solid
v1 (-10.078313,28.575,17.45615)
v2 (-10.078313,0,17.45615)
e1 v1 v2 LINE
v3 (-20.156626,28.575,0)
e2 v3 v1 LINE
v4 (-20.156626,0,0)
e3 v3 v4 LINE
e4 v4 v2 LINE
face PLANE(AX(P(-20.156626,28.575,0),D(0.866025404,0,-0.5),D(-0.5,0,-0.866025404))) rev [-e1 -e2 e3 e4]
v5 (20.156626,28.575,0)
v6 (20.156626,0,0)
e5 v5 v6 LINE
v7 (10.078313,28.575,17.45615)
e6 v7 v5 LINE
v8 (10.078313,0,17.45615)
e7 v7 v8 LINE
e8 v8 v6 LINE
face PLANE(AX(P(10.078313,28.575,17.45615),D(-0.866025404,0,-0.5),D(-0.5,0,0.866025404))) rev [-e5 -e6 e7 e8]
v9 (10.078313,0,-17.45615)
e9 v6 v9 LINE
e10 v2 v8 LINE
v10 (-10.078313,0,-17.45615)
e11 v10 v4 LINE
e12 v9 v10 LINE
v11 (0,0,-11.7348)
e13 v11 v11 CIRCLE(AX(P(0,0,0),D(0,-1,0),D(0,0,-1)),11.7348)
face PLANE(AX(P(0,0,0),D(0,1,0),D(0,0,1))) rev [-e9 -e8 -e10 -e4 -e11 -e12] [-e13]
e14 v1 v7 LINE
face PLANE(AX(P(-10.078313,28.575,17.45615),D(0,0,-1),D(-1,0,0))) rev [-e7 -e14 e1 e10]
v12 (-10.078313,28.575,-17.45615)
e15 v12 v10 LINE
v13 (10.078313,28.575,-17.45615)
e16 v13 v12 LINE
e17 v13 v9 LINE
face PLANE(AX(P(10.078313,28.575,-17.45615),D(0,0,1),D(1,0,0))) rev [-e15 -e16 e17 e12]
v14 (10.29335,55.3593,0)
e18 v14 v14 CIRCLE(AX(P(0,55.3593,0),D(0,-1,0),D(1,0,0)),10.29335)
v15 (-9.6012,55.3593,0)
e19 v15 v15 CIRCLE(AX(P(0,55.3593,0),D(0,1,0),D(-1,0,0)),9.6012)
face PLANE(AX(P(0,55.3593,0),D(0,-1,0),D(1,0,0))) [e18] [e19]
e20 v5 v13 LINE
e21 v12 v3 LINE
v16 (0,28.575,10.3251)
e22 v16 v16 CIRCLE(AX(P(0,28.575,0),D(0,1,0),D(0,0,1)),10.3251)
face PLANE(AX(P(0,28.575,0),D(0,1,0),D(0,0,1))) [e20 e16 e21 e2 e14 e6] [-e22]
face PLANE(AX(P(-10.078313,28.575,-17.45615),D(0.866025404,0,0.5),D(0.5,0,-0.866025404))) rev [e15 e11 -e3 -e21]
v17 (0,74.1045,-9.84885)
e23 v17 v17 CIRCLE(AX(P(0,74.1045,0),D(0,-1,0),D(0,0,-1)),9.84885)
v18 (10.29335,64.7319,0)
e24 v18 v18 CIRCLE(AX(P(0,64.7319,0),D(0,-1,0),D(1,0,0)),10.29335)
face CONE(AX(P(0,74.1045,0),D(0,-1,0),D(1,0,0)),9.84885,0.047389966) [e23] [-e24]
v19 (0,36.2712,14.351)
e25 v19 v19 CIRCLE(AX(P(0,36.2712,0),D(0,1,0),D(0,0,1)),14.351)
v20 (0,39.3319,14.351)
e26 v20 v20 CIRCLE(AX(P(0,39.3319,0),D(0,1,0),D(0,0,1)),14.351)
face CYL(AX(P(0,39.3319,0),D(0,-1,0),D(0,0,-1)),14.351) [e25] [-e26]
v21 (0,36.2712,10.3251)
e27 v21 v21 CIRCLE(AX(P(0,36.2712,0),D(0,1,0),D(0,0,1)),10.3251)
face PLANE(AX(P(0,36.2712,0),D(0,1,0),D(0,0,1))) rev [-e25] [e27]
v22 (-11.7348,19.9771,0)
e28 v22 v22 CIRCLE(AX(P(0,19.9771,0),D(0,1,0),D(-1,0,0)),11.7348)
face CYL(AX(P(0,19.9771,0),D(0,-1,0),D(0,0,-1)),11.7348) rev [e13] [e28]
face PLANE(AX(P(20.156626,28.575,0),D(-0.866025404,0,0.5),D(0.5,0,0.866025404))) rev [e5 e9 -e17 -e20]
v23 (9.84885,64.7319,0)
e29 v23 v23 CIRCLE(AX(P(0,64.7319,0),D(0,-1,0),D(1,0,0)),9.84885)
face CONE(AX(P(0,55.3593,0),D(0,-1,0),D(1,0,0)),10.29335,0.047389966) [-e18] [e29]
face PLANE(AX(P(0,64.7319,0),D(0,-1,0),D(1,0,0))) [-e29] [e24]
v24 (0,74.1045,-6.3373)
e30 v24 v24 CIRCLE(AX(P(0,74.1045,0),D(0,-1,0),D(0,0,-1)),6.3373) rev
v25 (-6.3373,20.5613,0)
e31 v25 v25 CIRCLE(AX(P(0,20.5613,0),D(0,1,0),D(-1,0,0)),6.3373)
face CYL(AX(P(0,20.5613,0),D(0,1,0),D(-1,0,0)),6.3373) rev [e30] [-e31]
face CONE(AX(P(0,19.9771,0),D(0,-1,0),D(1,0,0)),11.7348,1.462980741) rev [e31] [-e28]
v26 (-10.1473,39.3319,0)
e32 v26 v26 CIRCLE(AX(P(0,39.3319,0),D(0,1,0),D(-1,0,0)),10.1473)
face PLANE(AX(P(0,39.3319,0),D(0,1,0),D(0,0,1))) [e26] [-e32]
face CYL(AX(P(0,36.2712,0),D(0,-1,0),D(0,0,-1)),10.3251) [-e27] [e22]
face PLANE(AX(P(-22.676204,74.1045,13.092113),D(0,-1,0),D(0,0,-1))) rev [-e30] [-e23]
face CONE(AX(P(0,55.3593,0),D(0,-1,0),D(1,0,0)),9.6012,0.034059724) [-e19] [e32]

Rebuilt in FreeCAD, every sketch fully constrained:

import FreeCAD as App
import Part
import Sketcher

V = App.Vector
Q = App.Units.Quantity


def add_polygon(sketch, points):
    """Adds a closed chain of lines whose ends are joined by coincident constraints."""
    first, n = sketch.GeometryCount, len(points)
    for a, b in zip(points, points[1:] + points[:1]):
        sketch.addGeometry(Part.LineSegment(App.Vector(*a, 0), App.Vector(*b, 0)), False)
    for i in range(n):
        sketch.addConstraint(Sketcher.Constraint("Coincident", first + i, 2, first + (i + 1) % n, 1))

doc = App.newDocument("Part")
params = doc.addObject("Spreadsheet::Sheet", "Params")
for row, (alias, value) in enumerate([
    ("pad1_length", "1.125 in"),
    ("sketch2_diameter", "0.813 in"),
    ("pad2_length", "0.303 in"),
    ("sketch3_diameter", "1.13 in"),
    ("pad3_length", "0.1205 in"),
    ("sketch4_width", "0.378 in"),
    ("sketch4_height", "0.631 in"),
    ("revolution_angle", "360 deg"),
    ("sketch5_height", "1.476 in"),
    ("revolution2_angle", "360 deg"),
    ("sketch6_diameter", "0.924 in"),
    ("pocket1_length", "0.7865 in"),
    ("sketch7_diameter", "0.499 in"),
    ("pocket2_length", "2.846 in"),
    ("sketch8_width", "0.462 in"),
    ("sketch8_height", "0.023 in"),
    ("groove_angle", "360 deg"),
    ("sketch9_height", "1 in"),
], start=1):
    params.set(f"A{row}", alias)
    params.set(f"B{row}", "=" + value)
    params.setAlias(f"B{row}", alias)

body = doc.addObject("PartDesign::Body", "Body")

# Sketch on XZ plane
sketch1 = body.newObject("Sketcher::SketchObject", "Sketch")
sketch1.AttachmentSupport = (doc.getObject("XZ_Plane"), [""])
sketch1.MapMode = "FlatFace"
add_polygon(sketch1, [(10, -17), (-10, -17), (-20, 0), (-10, 17), (10, 17), (20, 0)])  # lines 0-5
sketch1.addConstraint(Sketcher.Constraint("Horizontal", 0))
sketch1.addConstraint(Sketcher.Constraint("Horizontal", 3))
sketch1.addConstraint(Sketcher.Constraint("Symmetric", 0, 2, 3, 2, -1, 1))
sketch1.addConstraint(Sketcher.Constraint("Symmetric", 1, 2, 4, 2, -1, 1))
sketch1.addConstraint(Sketcher.Constraint("PointOnObject", 1, 2, -1))
sketch1.addConstraint(Sketcher.Constraint("Parallel", 2, 5))
sketch1.addConstraint(Sketcher.Constraint("Vertical", 0, 2, 2, 2))
sketch1.addConstraint(Sketcher.Constraint("Angle", 1, Q("120 deg")))
sketch1.addConstraint(Sketcher.Constraint("DistanceY", 0, 2, 2, 2, Q("1.3745 in")))
sketch1.addConstraint(Sketcher.Constraint("DistanceX", 0, 2, 0, 1, 20.156626))
pad1 = body.newObject("PartDesign::Pad", "Pad")
pad1.Profile = sketch1
pad1.setExpression("Length", "Params.pad1_length")
pad1.Reversed = True

# Sketch on XZ plane
sketch2 = body.newObject("Sketcher::SketchObject", "Sketch001")
sketch2.AttachmentSupport = (doc.getObject("XZ_Plane"), [""])
sketch2.MapMode = "FlatFace"
sketch2.AttachmentOffset = App.Placement(V(0, 0, -1.125 * 25.4), App.Rotation())
sketch2.addGeometry(Part.Circle(V(0, 0, 0), V(0, 0, 1), 10), False)
sketch2.addConstraint(Sketcher.Constraint("Coincident", 0, 3, -1, 1))
sketch2.addConstraint(Sketcher.Constraint("Diameter", 0, Q("0.813 in")))
sketch2.setExpression("Constraints[1]", "Params.sketch2_diameter")
pad2 = body.newObject("PartDesign::Pad", "Pad001")
pad2.Profile = sketch2
pad2.setExpression("Length", "Params.pad2_length")
pad2.Reversed = True

# Sketch on XZ plane
sketch3 = body.newObject("Sketcher::SketchObject", "Sketch002")
sketch3.AttachmentSupport = (doc.getObject("XZ_Plane"), [""])
sketch3.MapMode = "FlatFace"
sketch3.AttachmentOffset = App.Placement(V(0, 0, -1.428 * 25.4), App.Rotation())
sketch3.addGeometry(Part.Circle(V(0, 0, 0), V(0, 0, 1), 14), False)
sketch3.addConstraint(Sketcher.Constraint("Coincident", 0, 3, -1, 1))
sketch3.addConstraint(Sketcher.Constraint("Diameter", 0, Q("1.13 in")))
sketch3.setExpression("Constraints[1]", "Params.sketch3_diameter")
pad3 = body.newObject("PartDesign::Pad", "Pad002")
pad3.Profile = sketch3
pad3.setExpression("Length", "Params.pad3_length")
pad3.Reversed = True

# Sketch on XY plane
sketch4 = body.newObject("Sketcher::SketchObject", "Sketch003")
sketch4.AttachmentSupport = (doc.getObject("XY_Plane"), [""])
sketch4.MapMode = "FlatFace"
add_polygon(sketch4, [(10, 55), (0, 55), (0, 39), (10, 39)])  # lines 0-3
sketch4.addConstraint(Sketcher.Constraint("Horizontal", 0))
sketch4.addConstraint(Sketcher.Constraint("Vertical", 1))
sketch4.addConstraint(Sketcher.Constraint("Horizontal", 2))
sketch4.addConstraint(Sketcher.Constraint("PointOnObject", 0, 2, -2))
sketch4.addConstraint(Sketcher.Constraint("DistanceX", 0, 2, 0, 1, Q("0.378 in")))
sketch4.addConstraint(Sketcher.Constraint("DistanceY", 1, 2, 1, 1, Q("0.631 in")))
sketch4.addConstraint(Sketcher.Constraint("DistanceX", 2, 1, 2, 2, Q("0.3995 in")))
sketch4.addConstraint(Sketcher.Constraint("DistanceY", -1, 1, 0, 2, Q("2.1795 in")))
sketch4.setExpression("Constraints[8]", "Params.sketch4_width")
sketch4.setExpression("Constraints[9]", "Params.sketch4_height")
revolution = body.newObject("PartDesign::Revolution", "Revolution")
revolution.Profile = sketch4
revolution.ReferenceAxis = (sketch4, ["V_Axis"])
revolution.setExpression("Angle", "Params.revolution_angle")

# Sketch on XY plane
sketch5 = body.newObject("Sketcher::SketchObject", "Sketch004")
sketch5.AttachmentSupport = (doc.getObject("XY_Plane"), [""])
sketch5.MapMode = "FlatFace"
add_polygon(sketch5, [(0, 55.36), (10.29, 55.36), (9.85, 64.73), (10.29, 64.73), (9.85, 74.1), (10.29, 74.1), (9.85, 83.48), (10.29, 83.48), (9.85, 92.85), (0, 92.85)])  # lines 0-9
sketch5.addConstraint(Sketcher.Constraint("Horizontal", 0))
sketch5.addConstraint(Sketcher.Constraint("Horizontal", 2))
sketch5.addConstraint(Sketcher.Constraint("Horizontal", 4))
sketch5.addConstraint(Sketcher.Constraint("Horizontal", 6))
sketch5.addConstraint(Sketcher.Constraint("Horizontal", 8))
sketch5.addConstraint(Sketcher.Constraint("Vertical", 9))
sketch5.addConstraint(Sketcher.Constraint("PointOnObject", 8, 2, -2))
sketch5.addConstraint(Sketcher.Constraint("Parallel", 1, 3))
sketch5.addConstraint(Sketcher.Constraint("Parallel", 3, 5))
sketch5.addConstraint(Sketcher.Constraint("Parallel", 5, 7))
sketch5.addConstraint(Sketcher.Constraint("Vertical", 0, 2, 2, 2))
sketch5.addConstraint(Sketcher.Constraint("Vertical", 1, 2, 3, 2))
sketch5.addConstraint(Sketcher.Constraint("Vertical", 2, 2, 4, 2))
sketch5.addConstraint(Sketcher.Constraint("Vertical", 3, 2, 5, 2))
sketch5.addConstraint(Sketcher.Constraint("Vertical", 4, 2, 6, 2))
sketch5.addConstraint(Sketcher.Constraint("Vertical", 5, 2, 7, 2))
sketch5.addConstraint(Sketcher.Constraint("DistanceY", 9, 2, 9, 1, Q("1.476 in")))
sketch5.addConstraint(Sketcher.Constraint("DistanceX", 2, 1, 2, 2, Q("0.0175 in")))
sketch5.addConstraint(Sketcher.Constraint("DistanceY", -1, 1, 0, 2, Q("2.1795 in")))
sketch5.addConstraint(Sketcher.Constraint("DistanceX", 0, 1, 0, 2, 10.29335))
sketch5.setExpression("Constraints[26]", "Params.sketch5_height")
revolution2 = body.newObject("PartDesign::Revolution", "Revolution001")
revolution2.Profile = sketch5
revolution2.ReferenceAxis = (sketch5, ["V_Axis"])
revolution2.setExpression("Angle", "Params.revolution2_angle")

# Sketch on XZ plane
sketch6 = body.newObject("Sketcher::SketchObject", "Sketch005")
sketch6.AttachmentSupport = (doc.getObject("XZ_Plane"), [""])
sketch6.MapMode = "FlatFace"
sketch6.addGeometry(Part.Circle(V(0, 0, 0), V(0, 0, 1), 12), False)
sketch6.addConstraint(Sketcher.Constraint("Coincident", 0, 3, -1, 1))
sketch6.addConstraint(Sketcher.Constraint("Diameter", 0, Q("0.924 in")))
sketch6.setExpression("Constraints[1]", "Params.sketch6_diameter")
pocket1 = body.newObject("PartDesign::Pocket", "Pocket")
pocket1.Profile = sketch6
pocket1.setExpression("Length", "Params.pocket1_length")

# Sketch on XZ plane
sketch7 = body.newObject("Sketcher::SketchObject", "Sketch006")
sketch7.AttachmentSupport = (doc.getObject("XZ_Plane"), [""])
sketch7.MapMode = "FlatFace"
sketch7.AttachmentOffset = App.Placement(V(0, 0, -3.6555 * 25.4), App.Rotation())
sketch7.addGeometry(Part.Circle(V(0, 0, 0), V(0, 0, 1), 6), False)
sketch7.addConstraint(Sketcher.Constraint("Coincident", 0, 3, -1, 1))
sketch7.addConstraint(Sketcher.Constraint("Diameter", 0, Q("0.499 in")))
sketch7.setExpression("Constraints[1]", "Params.sketch7_diameter")
pocket2 = body.newObject("PartDesign::Pocket", "Pocket001")
pocket2.Profile = sketch7
pocket2.setExpression("Length", "Params.pocket2_length")
pocket2.Reversed = True

# Sketch on XY plane
sketch8 = body.newObject("Sketcher::SketchObject", "Sketch007")
sketch8.AttachmentSupport = (doc.getObject("XY_Plane"), [""])
sketch8.MapMode = "FlatFace"
add_polygon(sketch8, [(6.3, 20.6), (0, 20.6), (0, 20), (11.7, 20)])  # lines 0-3
sketch8.addConstraint(Sketcher.Constraint("Horizontal", 0))
sketch8.addConstraint(Sketcher.Constraint("Vertical", 1))
sketch8.addConstraint(Sketcher.Constraint("Horizontal", 2))
sketch8.addConstraint(Sketcher.Constraint("PointOnObject", 0, 2, -2))
sketch8.addConstraint(Sketcher.Constraint("DistanceX", 2, 1, 2, 2, Q("0.462 in")))
sketch8.addConstraint(Sketcher.Constraint("DistanceY", 1, 2, 1, 1, Q("0.023 in")))
sketch8.addConstraint(Sketcher.Constraint("DistanceX", 0, 2, 0, 1, Q("0.2495 in")))
sketch8.addConstraint(Sketcher.Constraint("DistanceY", -1, 1, 0, 2, Q("0.8095 in")))
sketch8.setExpression("Constraints[8]", "Params.sketch8_width")
sketch8.setExpression("Constraints[9]", "Params.sketch8_height")
groove = body.newObject("PartDesign::Groove", "Groove")
groove.Profile = sketch8
groove.ReferenceAxis = (sketch8, ["V_Axis"])
groove.setExpression("Angle", "Params.groove_angle")

# Sketch on an angled plane
sketch9 = body.newObject("Sketcher::SketchObject", "Sketch008")
sketch9.Placement = App.Placement(V(15.117469, 0, -8.728075), App.Rotation(V(-0.5, 0, -0.866025404), V(0, 1, 0), V(0.866025404, 0, -0.5), "ZXY"))
add_polygon(sketch9, [(-10, 74), (10, 74), (10, 100), (-10, 100)])  # lines 0-3
sketch9.addConstraint(Sketcher.Constraint("Horizontal", 0))
sketch9.addConstraint(Sketcher.Constraint("Vertical", 1))
sketch9.addConstraint(Sketcher.Constraint("Horizontal", 2))
sketch9.addConstraint(Sketcher.Constraint("Vertical", 3))
sketch9.addConstraint(Sketcher.Constraint("DistanceY", 1, 1, 1, 2, Q("1 in")))
sketch9.addConstraint(Sketcher.Constraint("DistanceX", 0, 1, 0, 2, Q("0.8105 in")))
sketch9.addConstraint(Sketcher.Constraint("DistanceY", -1, 1, 0, 2, Q("2.9175 in")))
sketch9.addConstraint(Sketcher.Constraint("DistanceX", -1, 1, 0, 2, 10.29335))
sketch9.setExpression("Constraints[8]", "Params.sketch9_height")
pocket3 = body.newObject("PartDesign::Pocket", "Pocket002")
pocket3.Profile = sketch9
pocket3.Type = "ThroughAll"
pocket3.Midplane = True

doc.recompute()
